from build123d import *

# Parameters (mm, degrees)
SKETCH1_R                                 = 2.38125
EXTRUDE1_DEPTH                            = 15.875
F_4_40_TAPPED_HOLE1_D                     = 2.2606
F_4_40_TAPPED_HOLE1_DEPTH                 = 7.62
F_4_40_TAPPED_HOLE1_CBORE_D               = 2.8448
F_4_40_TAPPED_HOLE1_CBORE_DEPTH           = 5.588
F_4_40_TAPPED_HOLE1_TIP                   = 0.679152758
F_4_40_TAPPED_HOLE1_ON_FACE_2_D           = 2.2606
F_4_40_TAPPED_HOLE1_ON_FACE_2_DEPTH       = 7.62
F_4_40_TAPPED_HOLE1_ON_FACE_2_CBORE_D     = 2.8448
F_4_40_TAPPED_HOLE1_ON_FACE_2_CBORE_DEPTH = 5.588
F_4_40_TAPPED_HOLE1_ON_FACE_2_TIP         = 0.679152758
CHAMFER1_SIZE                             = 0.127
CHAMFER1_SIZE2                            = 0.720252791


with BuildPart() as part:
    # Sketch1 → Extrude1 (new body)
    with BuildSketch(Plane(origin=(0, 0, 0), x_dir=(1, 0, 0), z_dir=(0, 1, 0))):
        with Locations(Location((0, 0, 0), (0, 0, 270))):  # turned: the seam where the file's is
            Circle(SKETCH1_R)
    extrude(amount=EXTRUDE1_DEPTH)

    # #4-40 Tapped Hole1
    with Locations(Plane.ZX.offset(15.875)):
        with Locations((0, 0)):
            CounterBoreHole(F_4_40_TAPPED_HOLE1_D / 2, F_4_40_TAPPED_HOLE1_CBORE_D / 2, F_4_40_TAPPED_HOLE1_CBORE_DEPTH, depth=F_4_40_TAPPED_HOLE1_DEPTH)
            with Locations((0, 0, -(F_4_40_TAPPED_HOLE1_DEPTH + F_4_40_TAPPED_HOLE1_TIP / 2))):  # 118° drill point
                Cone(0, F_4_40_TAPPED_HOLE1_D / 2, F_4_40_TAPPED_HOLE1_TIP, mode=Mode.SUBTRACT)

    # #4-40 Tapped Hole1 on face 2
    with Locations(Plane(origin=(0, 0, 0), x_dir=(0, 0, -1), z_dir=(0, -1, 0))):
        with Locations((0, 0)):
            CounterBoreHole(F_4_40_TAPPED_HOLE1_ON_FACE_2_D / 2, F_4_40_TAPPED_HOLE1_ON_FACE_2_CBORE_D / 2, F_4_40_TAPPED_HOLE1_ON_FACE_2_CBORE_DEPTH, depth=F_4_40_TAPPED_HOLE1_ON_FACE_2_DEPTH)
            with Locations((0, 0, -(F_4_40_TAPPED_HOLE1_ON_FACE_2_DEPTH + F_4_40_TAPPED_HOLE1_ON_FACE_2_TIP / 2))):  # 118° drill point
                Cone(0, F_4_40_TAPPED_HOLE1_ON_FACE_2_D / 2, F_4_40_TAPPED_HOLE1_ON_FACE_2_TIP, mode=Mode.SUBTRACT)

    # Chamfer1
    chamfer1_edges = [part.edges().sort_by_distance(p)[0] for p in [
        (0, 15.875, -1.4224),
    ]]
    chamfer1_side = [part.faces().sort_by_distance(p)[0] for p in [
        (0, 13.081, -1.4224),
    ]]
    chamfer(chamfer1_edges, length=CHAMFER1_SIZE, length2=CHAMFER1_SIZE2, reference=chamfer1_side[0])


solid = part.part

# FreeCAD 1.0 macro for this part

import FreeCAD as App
import Part
import Sketcher
Q = App.Units.Quantity


def edges_at(feature, points):
    """Names of the edges that pass closest to the given points."""
    edges = feature.Shape.Edges
    near = lambda p: min(range(len(edges)), key=lambda i: edges[i].distToShape(Part.Vertex(*p))[0])
    return sorted({f"Edge{near(p) + 1}" for p in points})

doc = App.newDocument("Part")
params = doc.addObject("Spreadsheet::Sheet", "Params")
for row, (alias, value) in enumerate([
    ("sketch1_diameter", "0.1875 in"),
    ("pad1_length", "0.625 in"),
    ("sketch2_diameter", "0.089 in"),
    ("hole_diameter", "0.089 in"),
    ("hole_depth", "0.3 in"),
    ("hole_cbore_diameter", "0.112 in"),
    ("hole_cbore_depth", "0.22 in"),
    ("sketch3_diameter", "0.089 in"),
    ("hole2_diameter", "0.089 in"),
    ("hole2_depth", "0.3 in"),
    ("hole2_cbore_diameter", "0.112 in"),
    ("hole2_cbore_depth", "0.22 in"),
    ("chamfer_size", "0.005 in"),
    ("chamfer_size2", "0.720253 mm"),
], start=1):
    params.set(f"A{row}", alias)
    params.set(f"B{row}", "=" + value)
    params.setAlias(f"B{row}", alias)

body = doc.addObject("PartDesign::Body", "Body")

# Sketch on XZ plane
sketch1 = body.newObject("Sketcher::SketchObject", "Sketch")
sketch1.AttachmentSupport = (doc.getObject("XZ_Plane"), [""])
sketch1.MapMode = "FlatFace"
sketch1.addGeometry(Part.Circle(App.Vector(0, 0, 0), App.Vector(0, 0, 1), 2.4), False)
sketch1.addConstraint([
    Sketcher.Constraint("Coincident", 0, 3, -1, 1),
    Sketcher.Constraint("Diameter", 0, Q("0.1875 in")),
])
sketch1.setExpression("Constraints[1]", "Params.sketch1_diameter")
pad1 = body.newObject("PartDesign::Pad", "Pad")
pad1.Profile = sketch1
pad1.setExpression("Length", "Params.pad1_length")
pad1.Reversed = True

# Sketch on XZ plane
sketch2 = body.newObject("Sketcher::SketchObject", "Sketch001")
sketch2.AttachmentSupport = (doc.getObject("XZ_Plane"), [""])
sketch2.MapMode = "FlatFace"
sketch2.AttachmentOffset = App.Placement(App.Vector(0, 0, -0.625 * 25.4), App.Rotation())
sketch2.addGeometry(Part.Circle(App.Vector(0, 0, 0), App.Vector(0, 0, 1), 1.1), False)
sketch2.addConstraint([
    Sketcher.Constraint("Coincident", 0, 3, -1, 1),
    Sketcher.Constraint("Diameter", 0, Q("0.089 in")),
])
sketch2.setExpression("Constraints[1]", "Params.sketch2_diameter")
doc.recompute()
hole = body.newObject("PartDesign::Hole", "Hole")
hole.Profile = sketch2
hole.ThreadType = "None"
hole.setExpression("Diameter", "Params.hole_diameter")
hole.DepthType = "Dimension"
hole.setExpression("Depth", "Params.hole_depth")
hole.DrillPoint = "Angled"
hole.DrillPointAngle = 118
hole.HoleCutType = "Counterbore"
hole.setExpression("HoleCutDiameter", "Params.hole_cbore_diameter")
hole.setExpression("HoleCutDepth", "Params.hole_cbore_depth")
hole.Reversed = True

# Sketch on XZ plane
sketch3 = body.newObject("Sketcher::SketchObject", "Sketch002")
sketch3.AttachmentSupport = (doc.getObject("XZ_Plane"), [""])
sketch3.MapMode = "FlatFace"
sketch3.addGeometry(Part.Circle(App.Vector(0, 0, 0), App.Vector(0, 0, 1), 1.1), False)
sketch3.addConstraint([
    Sketcher.Constraint("Coincident", 0, 3, -1, 1),
    Sketcher.Constraint("Diameter", 0, Q("0.089 in")),
])
sketch3.setExpression("Constraints[1]", "Params.sketch3_diameter")
doc.recompute()
hole2 = body.newObject("PartDesign::Hole", "Hole001")
hole2.Profile = sketch3
hole2.ThreadType = "None"
hole2.setExpression("Diameter", "Params.hole2_diameter")
hole2.DepthType = "Dimension"
hole2.setExpression("Depth", "Params.hole2_depth")
hole2.DrillPoint = "Angled"
hole2.DrillPointAngle = 118
hole2.HoleCutType = "Counterbore"
hole2.setExpression("HoleCutDiameter", "Params.hole2_cbore_diameter")
hole2.setExpression("HoleCutDepth", "Params.hole2_cbore_depth")
doc.recompute()

chamfer = body.newObject("PartDesign::Chamfer", "Chamfer")
chamfer.Base = (hole2, edges_at(hole2, [(0, 15.875, -1.422)]))
chamfer.ChamferType = "Two distances"
chamfer.setExpression("Size", "Params.chamfer_size")
chamfer.setExpression("Size2", "Params.chamfer_size2")
chamfer.FlipDirection = True

doc.recompute()
